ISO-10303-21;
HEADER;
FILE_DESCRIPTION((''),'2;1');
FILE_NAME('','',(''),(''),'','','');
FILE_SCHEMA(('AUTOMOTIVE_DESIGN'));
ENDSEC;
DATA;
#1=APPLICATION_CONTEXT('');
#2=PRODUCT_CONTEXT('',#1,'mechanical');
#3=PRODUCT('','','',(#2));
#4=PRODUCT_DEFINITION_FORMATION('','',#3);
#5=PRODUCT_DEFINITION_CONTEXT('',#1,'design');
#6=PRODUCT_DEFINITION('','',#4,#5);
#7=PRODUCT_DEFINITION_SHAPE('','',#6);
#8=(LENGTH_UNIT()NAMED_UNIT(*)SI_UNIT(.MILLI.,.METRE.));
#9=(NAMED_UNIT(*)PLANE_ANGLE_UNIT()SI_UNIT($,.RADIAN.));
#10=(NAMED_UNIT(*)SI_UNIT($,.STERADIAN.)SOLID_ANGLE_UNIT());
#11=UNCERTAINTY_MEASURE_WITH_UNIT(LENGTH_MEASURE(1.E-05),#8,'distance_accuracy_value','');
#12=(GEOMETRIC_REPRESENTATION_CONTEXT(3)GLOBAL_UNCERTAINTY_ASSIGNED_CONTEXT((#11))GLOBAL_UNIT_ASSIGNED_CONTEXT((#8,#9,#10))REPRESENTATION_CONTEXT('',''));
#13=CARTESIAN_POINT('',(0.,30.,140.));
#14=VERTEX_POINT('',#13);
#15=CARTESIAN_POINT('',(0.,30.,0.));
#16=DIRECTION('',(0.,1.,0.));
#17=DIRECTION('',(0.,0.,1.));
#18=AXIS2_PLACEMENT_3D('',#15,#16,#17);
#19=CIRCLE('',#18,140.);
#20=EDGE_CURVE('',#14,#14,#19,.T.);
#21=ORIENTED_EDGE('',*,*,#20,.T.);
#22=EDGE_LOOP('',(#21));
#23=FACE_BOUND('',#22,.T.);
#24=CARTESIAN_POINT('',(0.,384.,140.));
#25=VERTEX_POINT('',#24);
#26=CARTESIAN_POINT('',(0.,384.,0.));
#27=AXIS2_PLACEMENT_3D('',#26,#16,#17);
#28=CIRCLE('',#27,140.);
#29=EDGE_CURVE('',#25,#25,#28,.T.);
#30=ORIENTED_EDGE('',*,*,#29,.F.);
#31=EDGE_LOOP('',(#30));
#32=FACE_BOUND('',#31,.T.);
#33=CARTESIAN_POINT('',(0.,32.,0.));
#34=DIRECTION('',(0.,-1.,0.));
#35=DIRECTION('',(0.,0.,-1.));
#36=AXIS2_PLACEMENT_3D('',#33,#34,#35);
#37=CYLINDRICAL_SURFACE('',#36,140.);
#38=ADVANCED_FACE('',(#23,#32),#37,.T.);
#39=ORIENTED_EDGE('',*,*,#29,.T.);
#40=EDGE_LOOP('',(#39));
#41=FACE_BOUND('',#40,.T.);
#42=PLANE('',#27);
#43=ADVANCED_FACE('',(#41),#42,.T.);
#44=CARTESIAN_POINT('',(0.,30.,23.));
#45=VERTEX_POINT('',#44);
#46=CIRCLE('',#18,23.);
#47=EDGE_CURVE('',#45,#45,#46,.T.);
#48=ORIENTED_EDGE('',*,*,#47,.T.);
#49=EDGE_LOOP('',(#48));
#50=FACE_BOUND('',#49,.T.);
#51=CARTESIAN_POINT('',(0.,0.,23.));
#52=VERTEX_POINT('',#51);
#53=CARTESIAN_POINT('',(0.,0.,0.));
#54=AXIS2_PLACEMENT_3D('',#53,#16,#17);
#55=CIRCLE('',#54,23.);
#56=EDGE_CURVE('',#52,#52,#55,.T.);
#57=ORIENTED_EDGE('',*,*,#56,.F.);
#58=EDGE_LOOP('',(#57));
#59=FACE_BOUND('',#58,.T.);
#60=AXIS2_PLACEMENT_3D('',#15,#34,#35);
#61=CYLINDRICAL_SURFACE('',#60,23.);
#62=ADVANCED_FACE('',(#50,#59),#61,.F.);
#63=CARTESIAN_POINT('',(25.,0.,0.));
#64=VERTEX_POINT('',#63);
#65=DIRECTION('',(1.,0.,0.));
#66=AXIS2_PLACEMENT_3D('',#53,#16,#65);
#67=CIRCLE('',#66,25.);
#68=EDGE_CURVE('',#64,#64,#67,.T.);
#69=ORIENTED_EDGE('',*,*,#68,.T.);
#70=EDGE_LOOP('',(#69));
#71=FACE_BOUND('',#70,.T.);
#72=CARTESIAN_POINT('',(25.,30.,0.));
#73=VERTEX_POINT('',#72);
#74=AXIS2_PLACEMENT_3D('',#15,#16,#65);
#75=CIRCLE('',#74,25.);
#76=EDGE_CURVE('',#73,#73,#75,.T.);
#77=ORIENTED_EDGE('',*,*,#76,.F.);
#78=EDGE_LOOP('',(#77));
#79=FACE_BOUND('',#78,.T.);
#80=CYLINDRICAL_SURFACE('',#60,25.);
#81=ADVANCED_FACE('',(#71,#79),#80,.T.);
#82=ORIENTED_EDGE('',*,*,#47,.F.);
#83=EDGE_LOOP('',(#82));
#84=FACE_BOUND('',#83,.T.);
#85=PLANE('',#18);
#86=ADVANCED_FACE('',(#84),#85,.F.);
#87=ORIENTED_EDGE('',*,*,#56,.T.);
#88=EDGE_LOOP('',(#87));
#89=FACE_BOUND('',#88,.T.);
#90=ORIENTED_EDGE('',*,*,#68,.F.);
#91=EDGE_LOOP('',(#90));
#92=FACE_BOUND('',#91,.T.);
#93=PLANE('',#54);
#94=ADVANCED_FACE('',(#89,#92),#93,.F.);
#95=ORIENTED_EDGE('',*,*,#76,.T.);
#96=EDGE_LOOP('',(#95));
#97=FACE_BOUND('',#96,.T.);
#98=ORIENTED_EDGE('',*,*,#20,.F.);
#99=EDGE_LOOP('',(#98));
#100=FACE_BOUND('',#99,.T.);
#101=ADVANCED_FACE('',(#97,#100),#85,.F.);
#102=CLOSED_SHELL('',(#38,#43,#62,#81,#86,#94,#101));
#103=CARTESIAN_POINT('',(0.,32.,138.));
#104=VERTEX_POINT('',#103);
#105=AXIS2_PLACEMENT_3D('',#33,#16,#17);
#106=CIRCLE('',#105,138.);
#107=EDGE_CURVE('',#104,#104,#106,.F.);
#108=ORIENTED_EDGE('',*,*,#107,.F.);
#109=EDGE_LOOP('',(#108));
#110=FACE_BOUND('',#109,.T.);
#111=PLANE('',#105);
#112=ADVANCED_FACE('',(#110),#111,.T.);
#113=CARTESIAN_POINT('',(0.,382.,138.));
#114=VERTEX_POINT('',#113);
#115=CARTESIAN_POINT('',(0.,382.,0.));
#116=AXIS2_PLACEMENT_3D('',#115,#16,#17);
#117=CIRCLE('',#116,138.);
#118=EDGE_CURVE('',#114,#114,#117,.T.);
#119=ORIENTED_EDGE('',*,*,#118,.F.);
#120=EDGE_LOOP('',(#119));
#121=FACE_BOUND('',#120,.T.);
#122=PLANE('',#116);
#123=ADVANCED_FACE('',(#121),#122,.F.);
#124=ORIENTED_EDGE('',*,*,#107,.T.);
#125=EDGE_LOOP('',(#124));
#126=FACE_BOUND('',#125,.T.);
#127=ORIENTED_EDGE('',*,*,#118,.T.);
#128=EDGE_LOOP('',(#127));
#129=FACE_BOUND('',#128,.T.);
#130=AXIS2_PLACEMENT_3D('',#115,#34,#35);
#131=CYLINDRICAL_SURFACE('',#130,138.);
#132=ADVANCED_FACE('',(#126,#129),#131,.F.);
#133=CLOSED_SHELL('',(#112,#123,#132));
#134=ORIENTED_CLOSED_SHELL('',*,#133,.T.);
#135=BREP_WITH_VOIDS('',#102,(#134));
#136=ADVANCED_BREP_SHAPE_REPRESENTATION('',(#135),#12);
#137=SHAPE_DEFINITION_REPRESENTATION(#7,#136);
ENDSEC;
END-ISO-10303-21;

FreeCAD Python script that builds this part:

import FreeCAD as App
import Part
import Sketcher

V = App.Vector

doc = App.newDocument("Part")
body = doc.addObject("PartDesign::Body", "Body")

sketch1 = body.newObject("Sketcher::SketchObject", "Sketch")
sketch1.AttachmentSupport = (doc.getObject("XZ_Plane"), [""])
sketch1.MapMode = "FlatFace"
sketch1.addGeometry(Part.Circle(V(0, 0, 0), V(0, 0, 1), 25), False)
sketch1.addGeometry(Part.Circle(V(0, 0, 0), V(0, 0, 1), 23), False)
sketch1.addConstraint(Sketcher.Constraint("Coincident", 0, 3, -1, 1))
sketch1.addConstraint(Sketcher.Constraint("Coincident", 1, 3, -1, 1))
sketch1.addConstraint(Sketcher.Constraint("Diameter", 0, 50.0))
sketch1.addConstraint(Sketcher.Constraint("Diameter", 1, 46.0))
pad1 = body.newObject("PartDesign::Pad", "Pad")
pad1.Profile = sketch1
pad1.Length = 30
pad1.Reversed = True

sketch2 = body.newObject("Sketcher::SketchObject", "Sketch001")
sketch2.AttachmentSupport = (doc.getObject("XZ_Plane"), [""])
sketch2.MapMode = "FlatFace"
sketch2.AttachmentOffset = App.Placement(V(0, 0, -30), App.Rotation())
sketch2.addGeometry(Part.Circle(V(0, 0, 0), V(0, 0, 1), 140), False)
sketch2.addConstraint(Sketcher.Constraint("Coincident", 0, 3, -1, 1))
sketch2.addConstraint(Sketcher.Constraint("Diameter", 0, 280.0))
pad2 = body.newObject("PartDesign::Pad", "Pad001")
pad2.Profile = sketch2
pad2.Length = 2
pad2.Reversed = True

sketch3 = body.newObject("Sketcher::SketchObject", "Sketch002")
sketch3.AttachmentSupport = (doc.getObject("XZ_Plane"), [""])
sketch3.MapMode = "FlatFace"
sketch3.AttachmentOffset = App.Placement(V(0, 0, -32), App.Rotation())
sketch3.addGeometry(Part.Circle(V(0, 0, 0), V(0, 0, 1), 140), False)
sketch3.addGeometry(Part.Circle(V(0, 0, 0), V(0, 0, 1), 138), False)
sketch3.addConstraint(Sketcher.Constraint("Coincident", 0, 3, -1, 1))
sketch3.addConstraint(Sketcher.Constraint("Coincident", 1, 3, -1, 1))
sketch3.addConstraint(Sketcher.Constraint("Diameter", 0, 280.0))
sketch3.addConstraint(Sketcher.Constraint("Diameter", 1, 276.0))
pad3 = body.newObject("PartDesign::Pad", "Pad002")
pad3.Profile = sketch3
pad3.Length = 350
pad3.Reversed = True

sketch4 = body.newObject("Sketcher::SketchObject", "Sketch003")
sketch4.AttachmentSupport = (doc.getObject("XZ_Plane"), [""])
sketch4.MapMode = "FlatFace"
sketch4.AttachmentOffset = App.Placement(V(0, 0, -382), App.Rotation())
sketch4.addGeometry(Part.Circle(V(0, 0, 0), V(0, 0, 1), 140), False)
sketch4.addConstraint(Sketcher.Constraint("Coincident", 0, 3, -1, 1))
sketch4.addConstraint(Sketcher.Constraint("Diameter", 0, 280.0))
pad4 = body.newObject("PartDesign::Pad", "Pad003")
pad4.Profile = sketch4
pad4.Length = 2
pad4.Reversed = True

doc.recompute()
